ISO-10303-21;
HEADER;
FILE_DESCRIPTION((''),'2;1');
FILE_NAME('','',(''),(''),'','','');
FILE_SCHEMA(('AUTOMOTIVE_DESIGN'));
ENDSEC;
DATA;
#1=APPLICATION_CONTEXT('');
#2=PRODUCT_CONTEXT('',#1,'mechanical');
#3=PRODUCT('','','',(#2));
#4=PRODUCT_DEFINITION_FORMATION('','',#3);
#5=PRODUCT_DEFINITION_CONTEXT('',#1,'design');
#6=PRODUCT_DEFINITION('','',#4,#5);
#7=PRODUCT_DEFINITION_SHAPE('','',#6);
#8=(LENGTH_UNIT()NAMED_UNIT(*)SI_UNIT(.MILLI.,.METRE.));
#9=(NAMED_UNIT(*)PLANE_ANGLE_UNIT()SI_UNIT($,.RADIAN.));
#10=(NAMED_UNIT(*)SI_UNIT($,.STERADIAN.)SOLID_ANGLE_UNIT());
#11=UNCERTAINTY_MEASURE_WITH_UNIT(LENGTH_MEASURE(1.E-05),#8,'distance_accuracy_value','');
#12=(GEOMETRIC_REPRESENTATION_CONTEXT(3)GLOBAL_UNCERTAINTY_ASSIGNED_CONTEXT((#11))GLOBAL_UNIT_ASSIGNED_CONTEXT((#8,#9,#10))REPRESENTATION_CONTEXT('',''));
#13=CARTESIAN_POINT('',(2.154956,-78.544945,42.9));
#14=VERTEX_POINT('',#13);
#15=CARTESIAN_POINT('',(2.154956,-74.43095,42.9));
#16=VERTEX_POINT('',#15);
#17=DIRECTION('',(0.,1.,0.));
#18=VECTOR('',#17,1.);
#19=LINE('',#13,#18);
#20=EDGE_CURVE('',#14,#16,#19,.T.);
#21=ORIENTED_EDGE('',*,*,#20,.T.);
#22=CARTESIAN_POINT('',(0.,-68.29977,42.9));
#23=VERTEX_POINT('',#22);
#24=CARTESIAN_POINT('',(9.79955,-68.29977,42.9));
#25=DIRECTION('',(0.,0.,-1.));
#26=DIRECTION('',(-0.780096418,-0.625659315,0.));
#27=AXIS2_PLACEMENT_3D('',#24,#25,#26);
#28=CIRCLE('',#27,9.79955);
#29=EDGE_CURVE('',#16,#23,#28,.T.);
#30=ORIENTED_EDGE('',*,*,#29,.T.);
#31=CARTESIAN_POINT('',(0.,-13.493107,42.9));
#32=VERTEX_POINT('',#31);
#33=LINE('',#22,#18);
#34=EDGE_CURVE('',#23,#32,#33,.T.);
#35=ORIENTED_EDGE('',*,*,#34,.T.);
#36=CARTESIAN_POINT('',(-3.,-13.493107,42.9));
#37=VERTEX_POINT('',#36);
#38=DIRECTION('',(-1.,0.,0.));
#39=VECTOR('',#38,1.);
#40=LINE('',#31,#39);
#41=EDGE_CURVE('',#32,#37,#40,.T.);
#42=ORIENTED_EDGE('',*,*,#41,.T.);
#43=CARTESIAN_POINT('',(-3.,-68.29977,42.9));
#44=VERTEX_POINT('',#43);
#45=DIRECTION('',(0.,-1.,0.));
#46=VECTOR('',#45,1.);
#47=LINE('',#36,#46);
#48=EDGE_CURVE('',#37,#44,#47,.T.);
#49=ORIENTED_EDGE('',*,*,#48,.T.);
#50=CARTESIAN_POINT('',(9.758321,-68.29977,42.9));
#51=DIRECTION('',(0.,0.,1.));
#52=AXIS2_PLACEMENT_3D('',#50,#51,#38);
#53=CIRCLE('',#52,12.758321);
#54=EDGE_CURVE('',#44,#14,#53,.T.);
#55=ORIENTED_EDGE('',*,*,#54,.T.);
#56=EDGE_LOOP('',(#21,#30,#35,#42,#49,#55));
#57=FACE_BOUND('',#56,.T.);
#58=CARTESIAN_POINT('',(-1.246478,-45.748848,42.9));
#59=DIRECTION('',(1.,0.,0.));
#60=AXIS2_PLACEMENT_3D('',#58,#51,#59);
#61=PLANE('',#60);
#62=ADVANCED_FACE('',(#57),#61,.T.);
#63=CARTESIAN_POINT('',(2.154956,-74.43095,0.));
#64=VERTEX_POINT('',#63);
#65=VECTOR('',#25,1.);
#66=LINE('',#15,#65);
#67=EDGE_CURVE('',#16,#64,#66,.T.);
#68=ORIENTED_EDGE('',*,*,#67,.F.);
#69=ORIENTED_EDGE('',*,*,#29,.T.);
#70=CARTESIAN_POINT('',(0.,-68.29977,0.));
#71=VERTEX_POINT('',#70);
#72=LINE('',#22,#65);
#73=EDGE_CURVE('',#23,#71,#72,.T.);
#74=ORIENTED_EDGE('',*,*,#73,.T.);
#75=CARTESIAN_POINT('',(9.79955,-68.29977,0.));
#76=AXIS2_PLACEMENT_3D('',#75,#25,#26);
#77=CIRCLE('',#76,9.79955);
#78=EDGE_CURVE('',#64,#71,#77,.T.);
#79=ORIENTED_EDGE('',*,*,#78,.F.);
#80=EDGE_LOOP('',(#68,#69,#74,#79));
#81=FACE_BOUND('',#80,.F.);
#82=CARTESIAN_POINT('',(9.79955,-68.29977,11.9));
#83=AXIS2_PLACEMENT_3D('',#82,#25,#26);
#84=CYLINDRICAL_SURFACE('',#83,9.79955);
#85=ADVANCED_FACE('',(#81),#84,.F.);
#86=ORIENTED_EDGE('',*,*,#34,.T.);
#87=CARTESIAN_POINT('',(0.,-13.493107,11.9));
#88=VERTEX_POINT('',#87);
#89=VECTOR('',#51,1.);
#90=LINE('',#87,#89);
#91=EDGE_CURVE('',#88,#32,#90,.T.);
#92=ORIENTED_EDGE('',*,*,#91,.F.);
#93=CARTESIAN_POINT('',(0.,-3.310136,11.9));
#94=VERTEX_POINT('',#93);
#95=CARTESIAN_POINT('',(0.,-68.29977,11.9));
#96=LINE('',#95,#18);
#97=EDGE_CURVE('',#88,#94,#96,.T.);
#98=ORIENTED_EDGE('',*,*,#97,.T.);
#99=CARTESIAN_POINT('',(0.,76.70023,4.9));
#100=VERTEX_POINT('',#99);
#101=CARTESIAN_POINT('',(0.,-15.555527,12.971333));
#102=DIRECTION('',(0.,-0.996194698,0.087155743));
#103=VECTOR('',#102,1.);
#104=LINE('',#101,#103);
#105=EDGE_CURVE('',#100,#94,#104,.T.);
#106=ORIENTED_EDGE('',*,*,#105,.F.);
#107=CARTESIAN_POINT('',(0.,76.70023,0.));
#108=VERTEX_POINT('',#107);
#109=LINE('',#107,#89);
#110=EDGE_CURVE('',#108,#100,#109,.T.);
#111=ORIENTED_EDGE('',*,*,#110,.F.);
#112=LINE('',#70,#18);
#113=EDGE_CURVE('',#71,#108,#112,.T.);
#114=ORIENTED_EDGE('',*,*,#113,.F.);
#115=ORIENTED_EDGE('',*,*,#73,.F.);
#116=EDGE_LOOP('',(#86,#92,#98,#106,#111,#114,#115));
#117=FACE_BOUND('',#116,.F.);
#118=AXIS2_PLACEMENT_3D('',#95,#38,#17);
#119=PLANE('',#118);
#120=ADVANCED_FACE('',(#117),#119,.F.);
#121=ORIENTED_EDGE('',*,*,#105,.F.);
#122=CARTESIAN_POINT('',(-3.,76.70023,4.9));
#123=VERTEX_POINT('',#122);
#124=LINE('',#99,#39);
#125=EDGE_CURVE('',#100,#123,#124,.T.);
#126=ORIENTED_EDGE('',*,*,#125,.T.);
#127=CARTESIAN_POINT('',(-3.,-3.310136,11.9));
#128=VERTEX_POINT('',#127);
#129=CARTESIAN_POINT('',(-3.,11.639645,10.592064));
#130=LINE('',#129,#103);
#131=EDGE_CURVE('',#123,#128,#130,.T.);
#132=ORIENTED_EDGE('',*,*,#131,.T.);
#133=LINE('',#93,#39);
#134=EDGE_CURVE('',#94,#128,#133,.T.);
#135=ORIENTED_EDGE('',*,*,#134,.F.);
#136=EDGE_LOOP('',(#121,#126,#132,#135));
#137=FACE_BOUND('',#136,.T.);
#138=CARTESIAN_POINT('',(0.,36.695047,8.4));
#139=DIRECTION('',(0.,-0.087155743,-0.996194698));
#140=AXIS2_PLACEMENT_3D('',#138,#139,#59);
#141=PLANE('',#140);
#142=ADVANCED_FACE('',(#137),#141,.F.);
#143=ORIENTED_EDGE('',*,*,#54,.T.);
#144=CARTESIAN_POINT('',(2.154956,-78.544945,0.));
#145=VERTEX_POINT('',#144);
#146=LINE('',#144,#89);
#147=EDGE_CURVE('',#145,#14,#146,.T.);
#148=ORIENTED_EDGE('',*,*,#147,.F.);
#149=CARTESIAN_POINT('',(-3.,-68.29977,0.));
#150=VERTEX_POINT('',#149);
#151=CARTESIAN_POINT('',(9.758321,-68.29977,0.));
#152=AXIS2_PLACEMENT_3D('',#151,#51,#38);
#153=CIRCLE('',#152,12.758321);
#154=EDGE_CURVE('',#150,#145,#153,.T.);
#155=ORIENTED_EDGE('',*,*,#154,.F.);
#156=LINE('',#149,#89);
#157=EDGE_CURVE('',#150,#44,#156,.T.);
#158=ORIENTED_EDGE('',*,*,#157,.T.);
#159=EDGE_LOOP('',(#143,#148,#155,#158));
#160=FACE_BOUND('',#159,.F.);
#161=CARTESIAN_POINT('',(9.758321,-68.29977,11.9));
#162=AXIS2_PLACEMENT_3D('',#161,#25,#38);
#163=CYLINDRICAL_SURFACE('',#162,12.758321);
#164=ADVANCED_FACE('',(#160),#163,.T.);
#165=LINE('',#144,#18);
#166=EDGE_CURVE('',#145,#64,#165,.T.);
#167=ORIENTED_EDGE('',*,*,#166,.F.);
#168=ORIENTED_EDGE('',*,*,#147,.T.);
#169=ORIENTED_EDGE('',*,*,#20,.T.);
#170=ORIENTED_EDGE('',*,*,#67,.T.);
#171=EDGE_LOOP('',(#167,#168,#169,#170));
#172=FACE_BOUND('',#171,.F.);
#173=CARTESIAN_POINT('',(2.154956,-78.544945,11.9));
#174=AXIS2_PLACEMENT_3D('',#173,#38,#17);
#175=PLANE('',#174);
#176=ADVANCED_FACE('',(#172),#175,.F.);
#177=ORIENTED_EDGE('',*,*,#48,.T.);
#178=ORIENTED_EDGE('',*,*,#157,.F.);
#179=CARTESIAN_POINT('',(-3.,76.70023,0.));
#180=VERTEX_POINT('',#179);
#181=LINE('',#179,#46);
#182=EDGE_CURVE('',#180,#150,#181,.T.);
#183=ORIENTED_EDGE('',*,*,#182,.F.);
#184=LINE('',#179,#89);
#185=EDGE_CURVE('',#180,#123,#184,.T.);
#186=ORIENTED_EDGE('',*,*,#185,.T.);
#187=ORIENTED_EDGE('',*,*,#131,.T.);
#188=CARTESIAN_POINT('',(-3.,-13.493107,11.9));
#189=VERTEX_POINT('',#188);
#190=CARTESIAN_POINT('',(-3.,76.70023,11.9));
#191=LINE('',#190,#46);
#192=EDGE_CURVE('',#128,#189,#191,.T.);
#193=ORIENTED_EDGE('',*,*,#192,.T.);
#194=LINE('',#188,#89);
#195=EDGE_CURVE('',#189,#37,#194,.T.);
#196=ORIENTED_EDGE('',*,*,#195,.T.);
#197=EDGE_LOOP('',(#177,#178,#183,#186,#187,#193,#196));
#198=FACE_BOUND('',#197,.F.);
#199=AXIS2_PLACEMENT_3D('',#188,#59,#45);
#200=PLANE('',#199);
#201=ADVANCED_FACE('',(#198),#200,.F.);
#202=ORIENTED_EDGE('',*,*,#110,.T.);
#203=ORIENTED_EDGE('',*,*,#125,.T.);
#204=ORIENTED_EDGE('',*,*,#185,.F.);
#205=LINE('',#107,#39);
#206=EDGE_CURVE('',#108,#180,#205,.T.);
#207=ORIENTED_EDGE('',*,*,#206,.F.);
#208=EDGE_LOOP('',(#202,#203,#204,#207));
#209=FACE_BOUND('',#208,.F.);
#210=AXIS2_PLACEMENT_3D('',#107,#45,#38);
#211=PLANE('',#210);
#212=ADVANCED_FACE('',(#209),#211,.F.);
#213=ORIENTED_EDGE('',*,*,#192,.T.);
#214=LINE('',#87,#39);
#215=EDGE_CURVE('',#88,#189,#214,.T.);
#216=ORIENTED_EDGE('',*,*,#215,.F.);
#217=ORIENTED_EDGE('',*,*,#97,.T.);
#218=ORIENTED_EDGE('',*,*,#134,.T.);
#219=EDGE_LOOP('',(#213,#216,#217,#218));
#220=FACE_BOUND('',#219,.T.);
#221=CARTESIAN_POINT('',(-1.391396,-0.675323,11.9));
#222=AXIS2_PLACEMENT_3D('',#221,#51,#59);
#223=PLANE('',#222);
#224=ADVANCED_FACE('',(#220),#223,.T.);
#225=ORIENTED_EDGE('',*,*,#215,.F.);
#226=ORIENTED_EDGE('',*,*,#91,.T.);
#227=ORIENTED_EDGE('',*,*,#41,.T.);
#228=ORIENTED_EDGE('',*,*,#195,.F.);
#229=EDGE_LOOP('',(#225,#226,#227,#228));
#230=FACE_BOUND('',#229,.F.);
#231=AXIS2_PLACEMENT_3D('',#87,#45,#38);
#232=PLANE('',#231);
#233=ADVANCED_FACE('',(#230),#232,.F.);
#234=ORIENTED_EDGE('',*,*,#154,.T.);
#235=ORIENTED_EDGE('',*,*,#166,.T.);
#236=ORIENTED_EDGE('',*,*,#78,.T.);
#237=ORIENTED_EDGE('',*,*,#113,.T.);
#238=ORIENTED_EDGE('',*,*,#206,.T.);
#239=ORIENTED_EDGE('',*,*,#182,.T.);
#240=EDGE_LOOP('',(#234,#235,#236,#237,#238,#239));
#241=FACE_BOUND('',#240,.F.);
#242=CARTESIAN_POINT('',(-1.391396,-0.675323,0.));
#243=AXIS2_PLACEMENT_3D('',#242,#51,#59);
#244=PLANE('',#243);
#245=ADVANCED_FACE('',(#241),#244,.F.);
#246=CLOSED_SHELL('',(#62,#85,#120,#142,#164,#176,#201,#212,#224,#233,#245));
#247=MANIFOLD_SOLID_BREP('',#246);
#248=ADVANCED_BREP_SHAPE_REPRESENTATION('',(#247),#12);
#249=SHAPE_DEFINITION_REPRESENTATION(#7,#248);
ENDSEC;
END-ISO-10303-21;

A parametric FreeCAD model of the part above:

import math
import FreeCAD as App
import Part
import Sketcher

V = App.Vector


def edges_at(feature, points):
    """Names of the edges that pass closest to the given points."""
    edges = feature.Shape.Edges
    near = lambda p: min(range(len(edges)), key=lambda i: edges[i].distToShape(Part.Vertex(*p))[0])
    return sorted({f"Edge{near(p) + 1}" for p in points})

doc = App.newDocument("Part")
body = doc.addObject("PartDesign::Body", "Body")

# Sketch on XY plane
sketch1 = doc.addObject("Sketcher::SketchObject", "Sketch")
body.addObject(sketch1)
sketch1.AttachmentSupport = (doc.XY_Plane, [""])
sketch1.MapMode = "FlatFace"
sketch1.addGeometry(Part.LineSegment(V(0, 76.7, 0), V(-3, 76.7, 0)), False)
sketch1.addGeometry(Part.LineSegment(V(-3, 76.7, 0), V(-3, -68.3, 0)), False)
sketch1.addGeometry(Part.ArcOfCircle(Part.Circle(V(9.8, -68.3, 0), V(0, 0, 1), 12.8), math.radians(180), math.radians(233)), False)
sketch1.addGeometry(Part.LineSegment(V(2.2, -78.5, 0), V(2.2, -74.4, 0)), False)
sketch1.addGeometry(Part.ArcOfCircle(Part.Circle(V(9.8, -68.3, 0), V(0, 0, 1), 9.8), math.radians(180), math.radians(219)), False)
sketch1.addGeometry(Part.LineSegment(V(0, -68.3, 0), V(0, 76.7, 0)), False)
sketch1.addConstraint(Sketcher.Constraint("Coincident", 0, 2, 1, 1))
sketch1.addConstraint(Sketcher.Constraint("Tangent", 1, 2, 2, 1))
sketch1.addConstraint(Sketcher.Constraint("Coincident", 2, 2, 3, 1))
sketch1.addConstraint(Sketcher.Constraint("Coincident", 3, 2, 4, 2))
sketch1.addConstraint(Sketcher.Constraint("Tangent", 4, 1, 5, 1))
sketch1.addConstraint(Sketcher.Constraint("Coincident", 5, 2, 0, 1))
sketch1.addConstraint(Sketcher.Constraint("Horizontal", 0))
sketch1.addConstraint(Sketcher.Constraint("Vertical", 1))
sketch1.addConstraint(Sketcher.Constraint("Vertical", 3))
sketch1.addConstraint(Sketcher.Constraint("Vertical", 5))
sketch1.addConstraint(Sketcher.Constraint("PointOnObject", 4, 1, -2))
sketch1.addConstraint(Sketcher.Constraint("Horizontal", 2, 3, 4, 3))
sketch1.addConstraint(Sketcher.Constraint("DistanceX", 0, 2, 0, 1, 3.0))
sketch1.addConstraint(Sketcher.Constraint("DistanceY", 1, 2, 1, 1, 145.0))
sketch1.addConstraint(Sketcher.Constraint("Radius", 2, 12.758321))
sketch1.addConstraint(Sketcher.Constraint("Radius", 4, 9.79955))
sketch1.addConstraint(Sketcher.Constraint("DistanceY", 3, 1, 3, 2, 4.113995))
sketch1.addConstraint(Sketcher.Constraint("DistanceY", 2, 3, -1, 1, 68.29977))
pad1 = doc.addObject("PartDesign::Pad", "Pad")
body.addObject(pad1)
pad1.Profile = sketch1
pad1.Length = 11.9

# Sketch on XY plane
sketch2 = doc.addObject("Sketcher::SketchObject", "Sketch001")
body.addObject(sketch2)
sketch2.AttachmentSupport = (doc.XY_Plane, [""])
sketch2.MapMode = "FlatFace"
sketch2.AttachmentOffset = App.Placement(V(0, 0, 11.9), App.Rotation())
sketch2.addGeometry(Part.LineSegment(V(0, -13.5, 0), V(-3, -13.5, 0)), False)
sketch2.addGeometry(Part.LineSegment(V(-3, -13.5, 0), V(-3, -68.3, 0)), False)
sketch2.addGeometry(Part.ArcOfCircle(Part.Circle(V(9.8, -68.3, 0), V(0, 0, 1), 12.8), math.radians(180), math.radians(233)), False)
sketch2.addGeometry(Part.LineSegment(V(2.2, -78.5, 0), V(2.2, -74.4, 0)), False)
sketch2.addGeometry(Part.ArcOfCircle(Part.Circle(V(9.8, -68.3, 0), V(0, 0, 1), 9.8), math.radians(180), math.radians(219)), False)
sketch2.addGeometry(Part.LineSegment(V(0, -68.3, 0), V(0, -13.5, 0)), False)
sketch2.addConstraint(Sketcher.Constraint("Coincident", 0, 2, 1, 1))
sketch2.addConstraint(Sketcher.Constraint("Tangent", 1, 2, 2, 1))
sketch2.addConstraint(Sketcher.Constraint("Coincident", 2, 2, 3, 1))
sketch2.addConstraint(Sketcher.Constraint("Coincident", 3, 2, 4, 2))
sketch2.addConstraint(Sketcher.Constraint("Tangent", 4, 1, 5, 1))
sketch2.addConstraint(Sketcher.Constraint("Coincident", 5, 2, 0, 1))
sketch2.addConstraint(Sketcher.Constraint("Horizontal", 0))
sketch2.addConstraint(Sketcher.Constraint("Vertical", 1))
sketch2.addConstraint(Sketcher.Constraint("Vertical", 3))
sketch2.addConstraint(Sketcher.Constraint("Vertical", 5))
sketch2.addConstraint(Sketcher.Constraint("PointOnObject", 4, 1, -2))
sketch2.addConstraint(Sketcher.Constraint("Horizontal", 2, 3, 4, 3))
sketch2.addConstraint(Sketcher.Constraint("DistanceX", 0, 2, 0, 1, 3.0))
sketch2.addConstraint(Sketcher.Constraint("Radius", 2, 12.758321))
sketch2.addConstraint(Sketcher.Constraint("Radius", 4, 9.79955))
sketch2.addConstraint(Sketcher.Constraint("DistanceY", 1, 2, 1, 1, 54.806664))
sketch2.addConstraint(Sketcher.Constraint("DistanceY", 3, 1, 3, 2, 4.113995))
sketch2.addConstraint(Sketcher.Constraint("DistanceY", 2, 3, -1, 1, 68.29977))
pad2 = doc.addObject("PartDesign::Pad", "Pad001")
body.addObject(pad2)
pad2.Profile = sketch2
pad2.Length = 31
doc.recompute()

chamfer = doc.addObject("PartDesign::Chamfer", "Chamfer")
body.addObject(chamfer)
chamfer.Base = (pad2, edges_at(pad2, [(-1.5, 76.7, 11.9)]))
chamfer.ChamferType = "Two distances"
chamfer.Size = 7
chamfer.Size2 = 80.010366

doc.recompute()
